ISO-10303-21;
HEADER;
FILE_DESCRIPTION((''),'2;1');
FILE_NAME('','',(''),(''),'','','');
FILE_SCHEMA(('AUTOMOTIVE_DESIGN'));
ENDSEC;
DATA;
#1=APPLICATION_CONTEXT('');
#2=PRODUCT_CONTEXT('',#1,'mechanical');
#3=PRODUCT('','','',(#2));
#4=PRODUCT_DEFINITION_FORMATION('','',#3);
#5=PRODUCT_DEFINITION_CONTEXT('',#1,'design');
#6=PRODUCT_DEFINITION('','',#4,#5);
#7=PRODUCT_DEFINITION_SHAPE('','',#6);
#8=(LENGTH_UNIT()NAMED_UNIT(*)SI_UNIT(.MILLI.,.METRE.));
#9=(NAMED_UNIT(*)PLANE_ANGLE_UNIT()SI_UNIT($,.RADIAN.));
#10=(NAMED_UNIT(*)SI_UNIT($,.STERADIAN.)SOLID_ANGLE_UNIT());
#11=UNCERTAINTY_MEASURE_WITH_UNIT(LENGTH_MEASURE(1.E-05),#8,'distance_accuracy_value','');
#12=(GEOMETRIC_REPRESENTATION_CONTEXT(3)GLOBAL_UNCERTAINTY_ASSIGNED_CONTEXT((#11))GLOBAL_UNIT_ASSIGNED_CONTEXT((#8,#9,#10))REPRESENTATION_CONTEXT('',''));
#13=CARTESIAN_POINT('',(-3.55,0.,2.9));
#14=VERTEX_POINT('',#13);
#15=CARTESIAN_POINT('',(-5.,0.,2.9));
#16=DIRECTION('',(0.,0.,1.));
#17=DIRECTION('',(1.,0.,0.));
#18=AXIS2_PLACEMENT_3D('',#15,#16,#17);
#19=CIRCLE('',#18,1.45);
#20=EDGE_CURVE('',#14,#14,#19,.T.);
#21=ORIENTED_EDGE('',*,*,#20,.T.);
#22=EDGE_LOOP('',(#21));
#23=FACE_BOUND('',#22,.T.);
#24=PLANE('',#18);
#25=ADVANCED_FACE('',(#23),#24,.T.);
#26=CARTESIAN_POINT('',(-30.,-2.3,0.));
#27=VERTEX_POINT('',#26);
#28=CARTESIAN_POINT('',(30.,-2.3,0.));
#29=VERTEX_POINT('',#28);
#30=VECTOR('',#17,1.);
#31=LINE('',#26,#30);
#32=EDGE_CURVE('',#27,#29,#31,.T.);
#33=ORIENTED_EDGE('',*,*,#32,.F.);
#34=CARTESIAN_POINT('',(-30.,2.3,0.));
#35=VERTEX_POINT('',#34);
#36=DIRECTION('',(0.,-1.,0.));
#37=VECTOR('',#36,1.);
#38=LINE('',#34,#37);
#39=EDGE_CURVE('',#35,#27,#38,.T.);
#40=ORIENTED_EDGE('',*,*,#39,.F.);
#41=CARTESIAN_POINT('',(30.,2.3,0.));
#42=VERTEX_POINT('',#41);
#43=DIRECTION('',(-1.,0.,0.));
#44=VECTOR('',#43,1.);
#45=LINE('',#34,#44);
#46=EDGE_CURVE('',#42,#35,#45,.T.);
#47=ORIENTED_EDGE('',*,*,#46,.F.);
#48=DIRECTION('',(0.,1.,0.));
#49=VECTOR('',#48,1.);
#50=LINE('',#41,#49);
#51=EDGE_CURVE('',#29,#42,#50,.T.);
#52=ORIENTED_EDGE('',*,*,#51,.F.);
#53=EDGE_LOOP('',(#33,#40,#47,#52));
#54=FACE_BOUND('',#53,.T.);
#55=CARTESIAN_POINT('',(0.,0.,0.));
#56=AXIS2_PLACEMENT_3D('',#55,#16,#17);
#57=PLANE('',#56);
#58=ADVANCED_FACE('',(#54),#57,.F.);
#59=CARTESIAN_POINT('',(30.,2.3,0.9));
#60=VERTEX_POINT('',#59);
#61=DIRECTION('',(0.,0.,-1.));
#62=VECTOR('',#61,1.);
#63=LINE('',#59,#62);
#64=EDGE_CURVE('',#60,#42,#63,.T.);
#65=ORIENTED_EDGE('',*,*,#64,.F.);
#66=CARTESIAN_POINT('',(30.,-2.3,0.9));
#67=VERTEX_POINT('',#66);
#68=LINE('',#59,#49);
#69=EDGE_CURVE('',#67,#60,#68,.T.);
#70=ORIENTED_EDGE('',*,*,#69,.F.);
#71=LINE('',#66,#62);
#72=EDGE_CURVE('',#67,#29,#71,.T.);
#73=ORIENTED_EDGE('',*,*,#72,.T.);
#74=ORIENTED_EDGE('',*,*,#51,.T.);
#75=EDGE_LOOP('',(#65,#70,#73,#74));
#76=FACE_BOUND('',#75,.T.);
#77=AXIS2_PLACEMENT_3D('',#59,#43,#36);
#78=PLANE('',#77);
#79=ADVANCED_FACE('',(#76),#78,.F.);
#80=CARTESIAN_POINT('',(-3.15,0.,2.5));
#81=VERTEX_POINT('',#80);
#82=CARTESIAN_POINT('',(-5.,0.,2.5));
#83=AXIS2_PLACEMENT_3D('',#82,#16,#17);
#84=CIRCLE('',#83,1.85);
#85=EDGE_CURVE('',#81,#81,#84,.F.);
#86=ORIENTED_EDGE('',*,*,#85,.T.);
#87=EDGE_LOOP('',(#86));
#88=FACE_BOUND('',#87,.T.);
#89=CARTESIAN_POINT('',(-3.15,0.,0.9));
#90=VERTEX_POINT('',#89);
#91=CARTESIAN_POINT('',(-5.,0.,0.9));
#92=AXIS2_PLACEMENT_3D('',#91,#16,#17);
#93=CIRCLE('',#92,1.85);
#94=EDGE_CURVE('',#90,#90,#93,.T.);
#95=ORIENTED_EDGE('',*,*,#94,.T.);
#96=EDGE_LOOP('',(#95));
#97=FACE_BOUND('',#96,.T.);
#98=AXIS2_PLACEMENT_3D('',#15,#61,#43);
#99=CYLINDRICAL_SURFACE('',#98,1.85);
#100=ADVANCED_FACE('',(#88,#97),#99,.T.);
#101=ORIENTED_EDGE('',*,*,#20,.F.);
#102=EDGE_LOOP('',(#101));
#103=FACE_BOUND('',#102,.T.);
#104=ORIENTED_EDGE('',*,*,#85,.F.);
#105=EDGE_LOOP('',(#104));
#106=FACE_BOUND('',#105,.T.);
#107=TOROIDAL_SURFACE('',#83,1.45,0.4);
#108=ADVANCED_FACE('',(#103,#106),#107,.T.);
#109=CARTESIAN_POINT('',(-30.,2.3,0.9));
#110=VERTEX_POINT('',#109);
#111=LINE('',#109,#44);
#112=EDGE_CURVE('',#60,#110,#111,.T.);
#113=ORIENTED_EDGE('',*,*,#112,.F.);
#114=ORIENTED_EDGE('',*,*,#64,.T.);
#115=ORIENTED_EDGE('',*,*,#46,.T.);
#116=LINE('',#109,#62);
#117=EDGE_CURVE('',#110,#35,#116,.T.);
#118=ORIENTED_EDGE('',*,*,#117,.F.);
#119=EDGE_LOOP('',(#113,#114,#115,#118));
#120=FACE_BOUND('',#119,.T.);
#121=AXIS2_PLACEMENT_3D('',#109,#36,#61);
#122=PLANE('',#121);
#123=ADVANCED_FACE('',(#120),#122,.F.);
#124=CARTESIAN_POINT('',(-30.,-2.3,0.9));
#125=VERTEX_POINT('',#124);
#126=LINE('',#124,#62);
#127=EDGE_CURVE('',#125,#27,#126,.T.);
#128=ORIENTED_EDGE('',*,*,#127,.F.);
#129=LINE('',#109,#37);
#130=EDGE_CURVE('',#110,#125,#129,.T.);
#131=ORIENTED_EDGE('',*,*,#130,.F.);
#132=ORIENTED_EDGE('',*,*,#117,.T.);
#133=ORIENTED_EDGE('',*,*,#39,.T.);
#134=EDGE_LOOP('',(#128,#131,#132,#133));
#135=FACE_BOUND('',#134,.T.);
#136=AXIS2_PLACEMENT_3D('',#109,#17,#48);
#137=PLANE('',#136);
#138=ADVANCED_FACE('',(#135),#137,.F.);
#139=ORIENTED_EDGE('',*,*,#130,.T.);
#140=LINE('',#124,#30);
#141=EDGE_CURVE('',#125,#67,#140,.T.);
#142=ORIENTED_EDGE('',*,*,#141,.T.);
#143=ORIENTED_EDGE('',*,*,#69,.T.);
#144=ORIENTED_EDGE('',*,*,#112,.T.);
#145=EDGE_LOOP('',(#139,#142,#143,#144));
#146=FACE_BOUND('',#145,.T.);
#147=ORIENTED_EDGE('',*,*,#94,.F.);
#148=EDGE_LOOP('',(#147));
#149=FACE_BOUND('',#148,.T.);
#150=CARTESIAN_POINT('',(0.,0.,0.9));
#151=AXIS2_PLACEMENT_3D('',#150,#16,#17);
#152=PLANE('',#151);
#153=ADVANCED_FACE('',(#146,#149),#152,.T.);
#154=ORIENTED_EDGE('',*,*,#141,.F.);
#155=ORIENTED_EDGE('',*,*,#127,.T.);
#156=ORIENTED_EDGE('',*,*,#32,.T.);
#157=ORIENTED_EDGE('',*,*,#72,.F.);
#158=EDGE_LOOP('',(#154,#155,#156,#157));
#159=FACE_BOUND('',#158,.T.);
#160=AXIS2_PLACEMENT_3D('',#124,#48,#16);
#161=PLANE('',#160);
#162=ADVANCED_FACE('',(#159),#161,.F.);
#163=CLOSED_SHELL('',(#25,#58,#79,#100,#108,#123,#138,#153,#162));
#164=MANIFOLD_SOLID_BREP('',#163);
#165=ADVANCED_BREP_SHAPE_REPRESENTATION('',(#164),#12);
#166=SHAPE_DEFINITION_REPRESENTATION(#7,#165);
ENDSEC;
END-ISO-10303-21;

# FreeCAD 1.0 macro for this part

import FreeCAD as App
import Part
import Sketcher
Q = App.Units.Quantity


def edges_at(feature, points):
    """Names of the edges that pass closest to the given points."""
    edges = feature.Shape.Edges
    near = lambda p: min(range(len(edges)), key=lambda i: edges[i].distToShape(Part.Vertex(*p))[0])
    return sorted({f"Edge{near(p) + 1}" for p in points})

doc = App.newDocument("Part")
body = doc.addObject("PartDesign::Body", "Body")

# Sketch on XY plane
sketch1 = doc.addObject("Sketcher::SketchObject", "Sketch")
body.addObject(sketch1)
sketch1.AttachmentSupport = (doc.XY_Plane, [""])
sketch1.MapMode = "FlatFace"
sketch1.addGeometry([
    Part.LineSegment(App.Vector(-30, 2.3, 0), App.Vector(-30, -2.3, 0)),
    Part.LineSegment(App.Vector(-30, -2.3, 0), App.Vector(30, -2.3, 0)),
    Part.LineSegment(App.Vector(30, -2.3, 0), App.Vector(30, 2.3, 0)),
    Part.LineSegment(App.Vector(30, 2.3, 0), App.Vector(-30, 2.3, 0)),
], False)
sketch1.addConstraint([
    Sketcher.Constraint("Coincident", 0, 2, 1, 1),
    Sketcher.Constraint("Coincident", 1, 2, 2, 1),
    Sketcher.Constraint("Coincident", 2, 2, 3, 1),
    Sketcher.Constraint("Coincident", 3, 2, 0, 1),
    Sketcher.Constraint("Vertical", 0),
    Sketcher.Constraint("Horizontal", 1),
    Sketcher.Constraint("Vertical", 2),
    Sketcher.Constraint("Horizontal", 3),
    Sketcher.Constraint("Symmetric", 0, 2, 2, 2, -1, 1),
    Sketcher.Constraint("DistanceX", 1, 1, 1, 2, Q("60 mm")),
    Sketcher.Constraint("DistanceY", 0, 2, 0, 1, Q("4.6 mm")),
])
pad1 = doc.addObject("PartDesign::Pad", "Pad")
body.addObject(pad1)
pad1.Profile = sketch1
pad1.Length = 0.9

# Sketch on XY plane
sketch2 = doc.addObject("Sketcher::SketchObject", "Sketch001")
body.addObject(sketch2)
sketch2.AttachmentSupport = (doc.XY_Plane, [""])
sketch2.MapMode = "FlatFace"
sketch2.AttachmentOffset = App.Placement(App.Vector(0, 0, 0.9), App.Rotation())
sketch2.addGeometry(Part.Circle(App.Vector(-5, 0, 0), App.Vector(0, 0, 1), 1.9), False)
sketch2.addConstraint([
    Sketcher.Constraint("PointOnObject", 0, 3, -1),
    Sketcher.Constraint("Diameter", 0, Q("3.7 mm")),
    Sketcher.Constraint("DistanceX", 0, 3, -1, 1, Q("5 mm")),
])
pad2 = doc.addObject("PartDesign::Pad", "Pad001")
body.addObject(pad2)
pad2.Profile = sketch2
pad2.Length = 2
doc.recompute()

fillet = doc.addObject("PartDesign::Fillet", "Fillet")
body.addObject(fillet)
fillet.Base = (pad2, edges_at(pad2, [(-6.85, 0, 2.9)]))
fillet.Radius = 0.4

doc.recompute()
